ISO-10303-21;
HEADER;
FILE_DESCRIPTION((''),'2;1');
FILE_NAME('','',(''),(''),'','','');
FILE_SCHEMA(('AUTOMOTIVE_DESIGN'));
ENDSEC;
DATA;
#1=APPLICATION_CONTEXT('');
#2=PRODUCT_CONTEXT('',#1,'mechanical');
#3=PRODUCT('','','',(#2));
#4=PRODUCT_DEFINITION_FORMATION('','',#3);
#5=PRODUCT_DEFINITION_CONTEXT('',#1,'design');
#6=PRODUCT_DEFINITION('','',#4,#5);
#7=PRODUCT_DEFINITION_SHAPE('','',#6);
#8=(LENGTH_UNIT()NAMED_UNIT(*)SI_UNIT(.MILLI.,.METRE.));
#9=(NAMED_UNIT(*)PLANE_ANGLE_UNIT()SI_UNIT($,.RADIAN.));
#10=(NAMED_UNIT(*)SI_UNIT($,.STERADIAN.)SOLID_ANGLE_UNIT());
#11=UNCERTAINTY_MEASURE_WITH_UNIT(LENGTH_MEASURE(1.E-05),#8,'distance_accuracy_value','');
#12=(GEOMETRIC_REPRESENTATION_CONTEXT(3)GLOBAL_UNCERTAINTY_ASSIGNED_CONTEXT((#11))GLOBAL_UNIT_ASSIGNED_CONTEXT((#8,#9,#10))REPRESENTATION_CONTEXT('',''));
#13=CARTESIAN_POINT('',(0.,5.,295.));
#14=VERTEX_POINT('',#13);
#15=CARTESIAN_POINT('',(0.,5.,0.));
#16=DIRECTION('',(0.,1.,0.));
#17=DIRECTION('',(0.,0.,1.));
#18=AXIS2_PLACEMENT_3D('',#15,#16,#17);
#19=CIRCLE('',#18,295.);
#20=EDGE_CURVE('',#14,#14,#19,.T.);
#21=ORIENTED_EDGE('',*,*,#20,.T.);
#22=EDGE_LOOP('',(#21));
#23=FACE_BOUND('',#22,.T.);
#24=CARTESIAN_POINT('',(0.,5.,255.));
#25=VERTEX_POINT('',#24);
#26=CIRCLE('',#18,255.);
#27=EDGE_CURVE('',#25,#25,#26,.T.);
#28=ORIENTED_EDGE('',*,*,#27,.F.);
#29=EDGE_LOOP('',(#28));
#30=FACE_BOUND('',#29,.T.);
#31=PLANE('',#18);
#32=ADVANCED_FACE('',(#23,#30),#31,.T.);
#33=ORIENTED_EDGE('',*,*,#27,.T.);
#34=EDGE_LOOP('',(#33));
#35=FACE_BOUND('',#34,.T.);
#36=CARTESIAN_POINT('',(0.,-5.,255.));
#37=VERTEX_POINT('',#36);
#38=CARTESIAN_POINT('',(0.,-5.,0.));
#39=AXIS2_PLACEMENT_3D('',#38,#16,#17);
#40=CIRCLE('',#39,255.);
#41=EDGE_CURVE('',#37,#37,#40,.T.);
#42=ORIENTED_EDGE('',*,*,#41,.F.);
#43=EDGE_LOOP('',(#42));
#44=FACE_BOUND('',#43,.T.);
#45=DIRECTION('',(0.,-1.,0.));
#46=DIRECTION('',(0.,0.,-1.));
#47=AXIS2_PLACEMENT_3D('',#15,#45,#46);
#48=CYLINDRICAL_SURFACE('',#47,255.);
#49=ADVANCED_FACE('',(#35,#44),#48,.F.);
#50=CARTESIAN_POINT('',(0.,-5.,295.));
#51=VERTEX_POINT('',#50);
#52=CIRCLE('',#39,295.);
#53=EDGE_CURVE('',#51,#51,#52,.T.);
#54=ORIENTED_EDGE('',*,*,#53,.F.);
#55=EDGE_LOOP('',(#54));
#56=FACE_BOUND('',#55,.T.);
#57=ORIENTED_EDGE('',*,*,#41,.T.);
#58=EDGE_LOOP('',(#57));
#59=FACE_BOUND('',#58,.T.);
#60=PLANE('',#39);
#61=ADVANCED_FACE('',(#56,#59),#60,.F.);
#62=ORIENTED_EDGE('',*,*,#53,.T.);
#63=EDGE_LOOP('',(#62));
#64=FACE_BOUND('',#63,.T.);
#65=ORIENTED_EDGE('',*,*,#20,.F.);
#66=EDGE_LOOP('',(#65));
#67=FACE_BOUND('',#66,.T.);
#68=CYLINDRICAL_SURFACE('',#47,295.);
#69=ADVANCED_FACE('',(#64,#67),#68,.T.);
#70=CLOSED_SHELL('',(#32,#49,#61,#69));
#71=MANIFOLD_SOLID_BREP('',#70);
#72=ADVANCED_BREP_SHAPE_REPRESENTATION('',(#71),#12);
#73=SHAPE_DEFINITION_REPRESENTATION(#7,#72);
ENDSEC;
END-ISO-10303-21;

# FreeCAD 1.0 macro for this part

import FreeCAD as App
import Part
import Sketcher
from FreeCAD import Vector

doc = App.newDocument("Part")
params = doc.addObject("Spreadsheet::Sheet", "Params")
for row, (alias, value) in enumerate([
    ("sketch1_diameter", "590 mm"),
    ("sketch1_diameter2", "510 mm"),
    ("pad1_length", "10 mm"),
], start=1):
    params.set(f"A{row}", alias)
    params.set(f"B{row}", "=" + value)
    params.setAlias(f"B{row}", alias)

body = doc.addObject("PartDesign::Body", "Body")

sketch1 = doc.addObject("Sketcher::SketchObject", "Sketch")
body.addObject(sketch1)
sketch1.AttachmentSupport = (doc.XZ_Plane, [""])
sketch1.MapMode = "FlatFace"
sketch1.addGeometry([
    Part.Circle(Vector(0, 0, 0), Vector(0, 0, 1), 295),
    Part.Circle(Vector(0, 0, 0), Vector(0, 0, 1), 255),
], False)
sketch1.addConstraint([
    Sketcher.Constraint("Coincident", 0, 3, -1, 1),
    Sketcher.Constraint("Coincident", 1, 3, -1, 1),
    Sketcher.Constraint("Diameter", 0, 590.0),
    Sketcher.Constraint("Diameter", 1, 510.0),
])
sketch1.setExpression("Constraints[2]", "Params.sketch1_diameter")
sketch1.setExpression("Constraints[3]", "Params.sketch1_diameter2")
pad1 = doc.addObject("PartDesign::Pad", "Pad")
body.addObject(pad1)
pad1.Profile = sketch1
pad1.setExpression("Length", "Params.pad1_length")
pad1.Midplane = True

doc.recompute()
